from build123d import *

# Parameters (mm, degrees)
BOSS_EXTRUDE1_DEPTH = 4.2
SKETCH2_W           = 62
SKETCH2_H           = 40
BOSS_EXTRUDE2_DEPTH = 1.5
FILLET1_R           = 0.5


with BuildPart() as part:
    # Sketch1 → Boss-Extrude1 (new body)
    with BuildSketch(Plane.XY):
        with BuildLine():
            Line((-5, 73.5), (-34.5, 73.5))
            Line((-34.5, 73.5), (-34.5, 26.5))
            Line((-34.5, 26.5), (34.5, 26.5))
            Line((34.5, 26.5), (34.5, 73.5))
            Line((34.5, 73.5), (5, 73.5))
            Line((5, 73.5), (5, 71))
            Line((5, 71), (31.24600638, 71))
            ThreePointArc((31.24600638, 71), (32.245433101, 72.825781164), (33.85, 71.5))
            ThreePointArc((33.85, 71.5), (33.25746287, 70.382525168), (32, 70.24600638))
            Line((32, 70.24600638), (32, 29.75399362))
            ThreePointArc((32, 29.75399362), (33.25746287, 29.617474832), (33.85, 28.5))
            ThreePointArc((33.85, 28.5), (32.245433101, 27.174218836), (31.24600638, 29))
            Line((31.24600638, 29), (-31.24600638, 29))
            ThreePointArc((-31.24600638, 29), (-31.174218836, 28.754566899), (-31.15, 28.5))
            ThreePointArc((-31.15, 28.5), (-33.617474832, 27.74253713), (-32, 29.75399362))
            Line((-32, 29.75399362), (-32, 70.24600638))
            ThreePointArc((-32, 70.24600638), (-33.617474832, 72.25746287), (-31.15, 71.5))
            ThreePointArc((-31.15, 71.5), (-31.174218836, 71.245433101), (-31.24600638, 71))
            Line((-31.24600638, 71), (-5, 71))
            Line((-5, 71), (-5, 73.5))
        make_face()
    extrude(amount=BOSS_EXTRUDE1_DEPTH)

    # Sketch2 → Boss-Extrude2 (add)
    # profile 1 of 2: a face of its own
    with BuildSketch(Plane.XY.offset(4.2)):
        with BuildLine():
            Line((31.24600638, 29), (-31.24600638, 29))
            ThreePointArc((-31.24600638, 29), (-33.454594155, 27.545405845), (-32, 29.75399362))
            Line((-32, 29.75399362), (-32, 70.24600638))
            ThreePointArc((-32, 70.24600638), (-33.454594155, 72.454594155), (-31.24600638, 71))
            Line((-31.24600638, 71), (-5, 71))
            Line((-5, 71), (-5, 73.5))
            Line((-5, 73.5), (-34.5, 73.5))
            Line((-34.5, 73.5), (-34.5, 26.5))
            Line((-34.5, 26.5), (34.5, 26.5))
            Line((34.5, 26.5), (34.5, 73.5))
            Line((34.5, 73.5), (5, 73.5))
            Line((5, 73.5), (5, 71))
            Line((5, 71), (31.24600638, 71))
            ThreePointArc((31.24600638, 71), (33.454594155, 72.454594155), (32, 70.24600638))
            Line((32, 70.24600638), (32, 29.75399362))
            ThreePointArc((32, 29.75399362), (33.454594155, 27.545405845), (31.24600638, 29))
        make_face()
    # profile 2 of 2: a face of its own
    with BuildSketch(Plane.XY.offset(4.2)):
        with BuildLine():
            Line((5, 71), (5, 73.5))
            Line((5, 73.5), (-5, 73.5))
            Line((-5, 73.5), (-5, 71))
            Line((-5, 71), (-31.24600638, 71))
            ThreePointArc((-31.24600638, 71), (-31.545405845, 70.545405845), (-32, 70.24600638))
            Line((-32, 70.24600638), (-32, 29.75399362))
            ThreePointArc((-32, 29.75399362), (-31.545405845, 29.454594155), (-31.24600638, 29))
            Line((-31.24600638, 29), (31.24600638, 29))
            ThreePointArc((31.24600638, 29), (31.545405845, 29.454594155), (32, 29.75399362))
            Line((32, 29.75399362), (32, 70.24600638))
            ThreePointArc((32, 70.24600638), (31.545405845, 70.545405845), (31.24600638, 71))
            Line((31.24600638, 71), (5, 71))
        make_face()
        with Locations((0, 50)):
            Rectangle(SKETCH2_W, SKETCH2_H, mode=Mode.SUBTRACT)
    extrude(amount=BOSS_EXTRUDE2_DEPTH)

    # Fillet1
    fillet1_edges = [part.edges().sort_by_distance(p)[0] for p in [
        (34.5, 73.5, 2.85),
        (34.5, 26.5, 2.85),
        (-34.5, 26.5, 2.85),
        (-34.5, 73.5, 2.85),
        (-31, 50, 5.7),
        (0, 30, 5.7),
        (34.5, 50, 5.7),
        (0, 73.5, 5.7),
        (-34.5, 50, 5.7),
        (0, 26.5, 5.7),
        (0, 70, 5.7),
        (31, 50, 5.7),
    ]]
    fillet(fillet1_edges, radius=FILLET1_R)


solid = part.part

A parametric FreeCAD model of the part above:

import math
import FreeCAD as App
import Part
import Sketcher


def edges_at(feature, points):
    """Names of the edges that pass closest to the given points."""
    edges = feature.Shape.Edges
    near = lambda p: min(range(len(edges)), key=lambda i: edges[i].distToShape(Part.Vertex(*p))[0])
    return sorted({f"Edge{near(p) + 1}" for p in points})


def add_polygon(sketch, points):
    """Adds a closed chain of lines whose ends are joined by coincident constraints."""
    first, n = sketch.GeometryCount, len(points)
    for a, b in zip(points, points[1:] + points[:1]):
        sketch.addGeometry(Part.LineSegment(App.Vector(*a, 0), App.Vector(*b, 0)), False)
    for i in range(n):
        sketch.addConstraint(Sketcher.Constraint("Coincident", first + i, 2, first + (i + 1) % n, 1))

doc = App.newDocument("Part")
params = doc.addObject("Spreadsheet::Sheet", "Params")
for row, (alias, value) in enumerate([
    ("sketch1_width", "69 mm"),
    ("sketch1_height", "47 mm"),
    ("sketch1_radius", "1.35 mm"),
    ("sketch1_width2", "29.5 mm"),
    ("sketch1_height2", "2.5 mm"),
    ("pad1_length", "4.2 mm"),
    ("sketch2_width", "69 mm"),
    ("sketch2_width2", "62 mm"),
    ("sketch2_height", "47 mm"),
    ("sketch2_height2", "40 mm"),
    ("sketch2_radius", "1.35 mm"),
    ("pad2_length", "1.5 mm"),
    ("fillet_radius", "0.5 mm"),
], start=1):
    params.set(f"A{row}", alias)
    params.set(f"B{row}", "=" + value)
    params.setAlias(f"B{row}", alias)

body = doc.addObject("PartDesign::Body", "Body")

# Sketch on XY plane
sketch1 = doc.addObject("Sketcher::SketchObject", "Sketch")
body.addObject(sketch1)
sketch1.AttachmentSupport = (doc.XY_Plane, [""])
sketch1.MapMode = "FlatFace"
sketch1.addGeometry(Part.LineSegment(App.Vector(-5, 73.5, 0), App.Vector(-34.5, 73.5, 0)), False)
sketch1.addGeometry(Part.LineSegment(App.Vector(-34.5, 73.5, 0), App.Vector(-34.5, 26.5, 0)), False)
sketch1.addGeometry(Part.LineSegment(App.Vector(-34.5, 26.5, 0), App.Vector(34.5, 26.5, 0)), False)
sketch1.addGeometry(Part.LineSegment(App.Vector(34.5, 26.5, 0), App.Vector(34.5, 73.5, 0)), False)
sketch1.addGeometry(Part.LineSegment(App.Vector(34.5, 73.5, 0), App.Vector(5, 73.5, 0)), False)
sketch1.addGeometry(Part.LineSegment(App.Vector(5, 73.5, 0), App.Vector(5, 71, 0)), False)
sketch1.addGeometry(Part.LineSegment(App.Vector(5, 71, 0), App.Vector(31.2, 71, 0)), False)
sketch1.addGeometry(Part.ArcOfCircle(Part.Circle(App.Vector(32.5, 71.5, 0), App.Vector(0, 0, 1), 1.4), math.radians(0), math.radians(202)), False)
sketch1.addGeometry(Part.ArcOfCircle(Part.Circle(App.Vector(32.5, 71.5, 0), App.Vector(0, 0, 1), 1.4), math.radians(-112), math.radians(0)), False)
sketch1.addGeometry(Part.LineSegment(App.Vector(32, 70.2, 0), App.Vector(32, 29.8, 0)), False)
sketch1.addGeometry(Part.ArcOfCircle(Part.Circle(App.Vector(32.5, 28.5, 0), App.Vector(0, 0, 1), 1.4), math.radians(0), math.radians(112)), False)
sketch1.addGeometry(Part.ArcOfCircle(Part.Circle(App.Vector(32.5, 28.5, 0), App.Vector(0, 0, 1), 1.4), math.radians(158), math.radians(360)), False)
sketch1.addGeometry(Part.LineSegment(App.Vector(31.2, 29, 0), App.Vector(-31.2, 29, 0)), False)
sketch1.addGeometry(Part.ArcOfCircle(Part.Circle(App.Vector(-32.5, 28.5, 0), App.Vector(0, 0, 1), 1.3), math.radians(0), math.radians(22)), False)
sketch1.addGeometry(Part.ArcOfCircle(Part.Circle(App.Vector(-32.5, 28.5, 0), App.Vector(0, 0, 1), 1.4), math.radians(68), math.radians(360)), False)
sketch1.addGeometry(Part.LineSegment(App.Vector(-32, 29.8, 0), App.Vector(-32, 70.2, 0)), False)
sketch1.addGeometry(Part.ArcOfCircle(Part.Circle(App.Vector(-32.5, 71.5, 0), App.Vector(0, 0, 1), 1.4), math.radians(0), math.radians(292)), False)
sketch1.addGeometry(Part.ArcOfCircle(Part.Circle(App.Vector(-32.5, 71.5, 0), App.Vector(0, 0, 1), 1.3), math.radians(-22), math.radians(0)), False)
sketch1.addGeometry(Part.LineSegment(App.Vector(-31.2, 71, 0), App.Vector(-5, 71, 0)), False)
sketch1.addGeometry(Part.LineSegment(App.Vector(-5, 71, 0), App.Vector(-5, 73.5, 0)), False)
sketch1.addConstraint(Sketcher.Constraint("Coincident", 0, 2, 1, 1))
sketch1.addConstraint(Sketcher.Constraint("Coincident", 1, 2, 2, 1))
sketch1.addConstraint(Sketcher.Constraint("Coincident", 2, 2, 3, 1))
sketch1.addConstraint(Sketcher.Constraint("Coincident", 3, 2, 4, 1))
sketch1.addConstraint(Sketcher.Constraint("Coincident", 4, 2, 5, 1))
sketch1.addConstraint(Sketcher.Constraint("Coincident", 5, 2, 6, 1))
sketch1.addConstraint(Sketcher.Constraint("Coincident", 6, 2, 7, 2))
sketch1.addConstraint(Sketcher.Constraint("Tangent", 7, 1, 8, 2))
sketch1.addConstraint(Sketcher.Constraint("Coincident", 8, 1, 9, 1))
sketch1.addConstraint(Sketcher.Constraint("Coincident", 9, 2, 10, 2))
sketch1.addConstraint(Sketcher.Constraint("Tangent", 10, 1, 11, 2))
sketch1.addConstraint(Sketcher.Constraint("Coincident", 11, 1, 12, 1))
sketch1.addConstraint(Sketcher.Constraint("Coincident", 12, 2, 13, 2))
sketch1.addConstraint(Sketcher.Constraint("Tangent", 13, 1, 14, 2))
sketch1.addConstraint(Sketcher.Constraint("Coincident", 14, 1, 15, 1))
sketch1.addConstraint(Sketcher.Constraint("Coincident", 15, 2, 16, 2))
sketch1.addConstraint(Sketcher.Constraint("Tangent", 16, 1, 17, 2))
sketch1.addConstraint(Sketcher.Constraint("Coincident", 17, 1, 18, 1))
sketch1.addConstraint(Sketcher.Constraint("Coincident", 18, 2, 19, 1))
sketch1.addConstraint(Sketcher.Constraint("Coincident", 19, 2, 0, 1))
sketch1.addConstraint(Sketcher.Constraint("Horizontal", 0))
sketch1.addConstraint(Sketcher.Constraint("Vertical", 1))
sketch1.addConstraint(Sketcher.Constraint("Horizontal", 2))
sketch1.addConstraint(Sketcher.Constraint("Vertical", 3))
sketch1.addConstraint(Sketcher.Constraint("Horizontal", 4))
sketch1.addConstraint(Sketcher.Constraint("Vertical", 5))
sketch1.addConstraint(Sketcher.Constraint("Horizontal", 6))
sketch1.addConstraint(Sketcher.Constraint("Vertical", 9))
sketch1.addConstraint(Sketcher.Constraint("Horizontal", 12))
sketch1.addConstraint(Sketcher.Constraint("Vertical", 15))
sketch1.addConstraint(Sketcher.Constraint("Horizontal", 18))
sketch1.addConstraint(Sketcher.Constraint("Vertical", 19))
sketch1.addConstraint(Sketcher.Constraint("Equal", 7, 8))
sketch1.addConstraint(Sketcher.Constraint("Equal", 8, 10))
sketch1.addConstraint(Sketcher.Constraint("Equal", 10, 11))
sketch1.addConstraint(Sketcher.Constraint("Equal", 11, 13))
sketch1.addConstraint(Sketcher.Constraint("Equal", 13, 14))
sketch1.addConstraint(Sketcher.Constraint("Equal", 14, 16))
sketch1.addConstraint(Sketcher.Constraint("Equal", 16, 17))
sketch1.addConstraint(Sketcher.Constraint("Symmetric", 10, 3, 13, 3, -2))
sketch1.addConstraint(Sketcher.Constraint("Symmetric", 7, 3, 16, 3, -2))
sketch1.addConstraint(Sketcher.Constraint("Symmetric", 0, 2, 3, 2, -2))
sketch1.addConstraint(Sketcher.Constraint("Symmetric", 5, 2, 18, 2, -2))
sketch1.addConstraint(Sketcher.Constraint("Horizontal", 17, 3, 7, 1))
sketch1.addConstraint(Sketcher.Constraint("Horizontal", 14, 3, 10, 1))
sketch1.addConstraint(Sketcher.Constraint("Horizontal", 10, 1, 13, 1))
sketch1.addConstraint(Sketcher.Constraint("Horizontal", 9, 2, 14, 1))
sketch1.addConstraint(Sketcher.Constraint("Horizontal", 7, 1, 16, 1))
sketch1.addConstraint(Sketcher.Constraint("Vertical", 8, 3, 10, 3))
sketch1.addConstraint(Sketcher.Constraint("Vertical", 6, 2, 11, 1))
sketch1.addConstraint(Sketcher.Constraint("DistanceX", 2, 1, 2, 2, 69.0))
sketch1.addConstraint(Sketcher.Constraint("DistanceY", 1, 2, 1, 1, 47.0))
sketch1.addConstraint(Sketcher.Constraint("Radius", 7, 1.35))
sketch1.addConstraint(Sketcher.Constraint("DistanceX", 0, 2, 0, 1, 29.5))
sketch1.addConstraint(Sketcher.Constraint("DistanceY", 5, 2, 5, 1, 2.5))
sketch1.addConstraint(Sketcher.Constraint("DistanceY", -1, 1, 5, 2, 71.0))
sketch1.addConstraint(Sketcher.Constraint("DistanceX", -1, 1, 8, 1, 32.0))
sketch1.addConstraint(Sketcher.Constraint("DistanceY", -1, 1, 11, 1, 29.0))
sketch1.addConstraint(Sketcher.Constraint("DistanceY", 10, 3, 7, 3, 43.0))
sketch1.addConstraint(Sketcher.Constraint("DistanceX", 13, 3, 10, 3, 65.0))
sketch1.setExpression("Constraints[50]", "Params.sketch1_width")
sketch1.setExpression("Constraints[51]", "Params.sketch1_height")
sketch1.setExpression("Constraints[52]", "Params.sketch1_radius")
sketch1.setExpression("Constraints[53]", "Params.sketch1_width2")
sketch1.setExpression("Constraints[54]", "Params.sketch1_height2")
pad1 = doc.addObject("PartDesign::Pad", "Pad")
body.addObject(pad1)
pad1.Profile = sketch1
pad1.setExpression("Length", "Params.pad1_length")

# Sketch on XY plane
sketch2 = doc.addObject("Sketcher::SketchObject", "Sketch001")
body.addObject(sketch2)
sketch2.AttachmentSupport = (doc.XY_Plane, [""])
sketch2.MapMode = "FlatFace"
sketch2.AttachmentOffset = App.Placement(App.Vector(0, 0, 4.2), App.Rotation())
add_polygon(sketch2, [(-34.5, 73.5), (-34.5, 26.5), (34.5, 26.5), (34.5, 73.5)])  # lines 0-3
sketch2.addGeometry(Part.ArcOfCircle(Part.Circle(App.Vector(-32.5, 28.5, 0), App.Vector(0, 0, 1), 1.4), math.radians(68), math.radians(382)), False)  # 4
sketch2.addGeometry(Part.ArcOfCircle(Part.Circle(App.Vector(-32.5, 28.5, 0), App.Vector(0, 0, 1), 1.3), math.radians(22), math.radians(68)), False)  # 5
sketch2.addGeometry(Part.ArcOfCircle(Part.Circle(App.Vector(-32.5, 71.5, 0), App.Vector(0, 0, 1), 1.4), math.radians(-22), math.radians(292)), False)  # 6
sketch2.addGeometry(Part.ArcOfCircle(Part.Circle(App.Vector(-32.5, 71.5, 0), App.Vector(0, 0, 1), 1.3), math.radians(-68), math.radians(-22)), False)  # 7
sketch2.addGeometry(Part.ArcOfCircle(Part.Circle(App.Vector(32.5, 71.5, 0), App.Vector(0, 0, 1), 1.4), math.radians(-112), math.radians(202)), False)  # 8
sketch2.addGeometry(Part.ArcOfCircle(Part.Circle(App.Vector(32.5, 71.5, 0), App.Vector(0, 0, 1), 1.3), math.radians(-158), math.radians(-112)), False)  # 9
sketch2.addGeometry(Part.ArcOfCircle(Part.Circle(App.Vector(32.5, 28.5, 0), App.Vector(0, 0, 1), 1.4), math.radians(158), math.radians(472)), False)  # 10
sketch2.addGeometry(Part.ArcOfCircle(Part.Circle(App.Vector(32.5, 28.5, 0), App.Vector(0, 0, 1), 1.3), math.radians(112), math.radians(158)), False)  # 11
add_polygon(sketch2, [(-31, 70), (31, 70), (31, 30), (-31, 30)])  # lines 12-15
sketch2.addConstraint(Sketcher.Constraint("Tangent", 4, 1, 5, 2))
sketch2.addConstraint(Sketcher.Constraint("Coincident", 5, 1, 4, 2))
sketch2.addConstraint(Sketcher.Constraint("Tangent", 6, 1, 7, 2))
sketch2.addConstraint(Sketcher.Constraint("Coincident", 7, 1, 6, 2))
sketch2.addConstraint(Sketcher.Constraint("Tangent", 8, 1, 9, 2))
sketch2.addConstraint(Sketcher.Constraint("Coincident", 9, 1, 8, 2))
sketch2.addConstraint(Sketcher.Constraint("Tangent", 10, 1, 11, 2))
sketch2.addConstraint(Sketcher.Constraint("Coincident", 11, 1, 10, 2))
sketch2.addConstraint(Sketcher.Constraint("Vertical", 0))
sketch2.addConstraint(Sketcher.Constraint("Horizontal", 1))
sketch2.addConstraint(Sketcher.Constraint("Vertical", 2))
sketch2.addConstraint(Sketcher.Constraint("Horizontal", 3))
sketch2.addConstraint(Sketcher.Constraint("Horizontal", 12))
sketch2.addConstraint(Sketcher.Constraint("Vertical", 13))
sketch2.addConstraint(Sketcher.Constraint("Horizontal", 14))
sketch2.addConstraint(Sketcher.Constraint("Vertical", 15))
sketch2.addConstraint(Sketcher.Constraint("Equal", 5, 6))
sketch2.addConstraint(Sketcher.Constraint("Equal", 7, 8))
sketch2.addConstraint(Sketcher.Constraint("Equal", 9, 10))
sketch2.addConstraint(Sketcher.Constraint("Symmetric", 6, 3, 8, 3, -2))
sketch2.addConstraint(Sketcher.Constraint("Symmetric", 4, 3, 10, 3, -2))
sketch2.addConstraint(Sketcher.Constraint("Horizontal", 7, 1, 8, 1))
sketch2.addConstraint(Sketcher.Constraint("Horizontal", 6, 1, 9, 1))
sketch2.addConstraint(Sketcher.Constraint("Horizontal", 5, 1, 10, 1))
sketch2.addConstraint(Sketcher.Constraint("Horizontal", 4, 1, 11, 1))
sketch2.addConstraint(Sketcher.Constraint("Vertical", 5, 3, 6, 3))
sketch2.addConstraint(Sketcher.Constraint("Vertical", 5, 1, 6, 1))
sketch2.addConstraint(Sketcher.Constraint("Vertical", 4, 1, 7, 1))
sketch2.addConstraint(Sketcher.Constraint("DistanceX", 1, 1, 1, 2, 69.0))
sketch2.addConstraint(Sketcher.Constraint("DistanceX", 12, 1, 12, 2, 62.0))
sketch2.addConstraint(Sketcher.Constraint("DistanceY", 0, 2, 0, 1, 47.0))
sketch2.addConstraint(Sketcher.Constraint("DistanceY", 13, 2, 13, 1, 40.0))
sketch2.addConstraint(Sketcher.Constraint("Radius", 4, 1.35))
sketch2.addConstraint(Sketcher.Constraint("DistanceX", 4, 1, -1, 1, 32.0))
sketch2.addConstraint(Sketcher.Constraint("DistanceY", -1, 1, 5, 1, 29.0))
sketch2.addConstraint(Sketcher.Constraint("DistanceY", -1, 1, 6, 1, 71.0))
sketch2.addConstraint(Sketcher.Constraint("DistanceX", -1, 1, 12, 2, 31.0))
sketch2.addConstraint(Sketcher.Constraint("DistanceY", -1, 1, 12, 2, 70.0))
sketch2.addConstraint(Sketcher.Constraint("DistanceY", 5, 3, 6, 3, 43.0))
sketch2.addConstraint(Sketcher.Constraint("DistanceX", 7, 3, 8, 3, 65.0))
sketch2.addConstraint(Sketcher.Constraint("DistanceX", 0, 2, 4, 3, 2.0))
sketch2.addConstraint(Sketcher.Constraint("DistanceY", 0, 2, 4, 3, 2.0))
sketch2.setExpression("Constraints[36]", "Params.sketch2_width")
sketch2.setExpression("Constraints[37]", "Params.sketch2_width2")
sketch2.setExpression("Constraints[38]", "Params.sketch2_height")
sketch2.setExpression("Constraints[39]", "Params.sketch2_height2")
sketch2.setExpression("Constraints[40]", "Params.sketch2_radius")
pad2 = doc.addObject("PartDesign::Pad", "Pad001")
body.addObject(pad2)
pad2.Profile = sketch2
pad2.setExpression("Length", "Params.pad2_length")
doc.recompute()

fillet = doc.addObject("PartDesign::Fillet", "Fillet")
body.addObject(fillet)
fillet.Base = (pad2, edges_at(pad2, [
    (34.5, 73.5, 2.85),
    (34.5, 26.5, 2.85),
    (-34.5, 26.5, 2.85),
    (-34.5, 73.5, 2.85),
    (-31, 50, 5.7),
    (0, 30, 5.7),
    (34.5, 50, 5.7),
    (0, 73.5, 5.7),
    (-34.5, 50, 5.7),
    (0, 26.5, 5.7),
    (0, 70, 5.7),
    (31, 50, 5.7),
]))
fillet.setExpression("Radius", "Params.fillet_radius")

doc.recompute()
